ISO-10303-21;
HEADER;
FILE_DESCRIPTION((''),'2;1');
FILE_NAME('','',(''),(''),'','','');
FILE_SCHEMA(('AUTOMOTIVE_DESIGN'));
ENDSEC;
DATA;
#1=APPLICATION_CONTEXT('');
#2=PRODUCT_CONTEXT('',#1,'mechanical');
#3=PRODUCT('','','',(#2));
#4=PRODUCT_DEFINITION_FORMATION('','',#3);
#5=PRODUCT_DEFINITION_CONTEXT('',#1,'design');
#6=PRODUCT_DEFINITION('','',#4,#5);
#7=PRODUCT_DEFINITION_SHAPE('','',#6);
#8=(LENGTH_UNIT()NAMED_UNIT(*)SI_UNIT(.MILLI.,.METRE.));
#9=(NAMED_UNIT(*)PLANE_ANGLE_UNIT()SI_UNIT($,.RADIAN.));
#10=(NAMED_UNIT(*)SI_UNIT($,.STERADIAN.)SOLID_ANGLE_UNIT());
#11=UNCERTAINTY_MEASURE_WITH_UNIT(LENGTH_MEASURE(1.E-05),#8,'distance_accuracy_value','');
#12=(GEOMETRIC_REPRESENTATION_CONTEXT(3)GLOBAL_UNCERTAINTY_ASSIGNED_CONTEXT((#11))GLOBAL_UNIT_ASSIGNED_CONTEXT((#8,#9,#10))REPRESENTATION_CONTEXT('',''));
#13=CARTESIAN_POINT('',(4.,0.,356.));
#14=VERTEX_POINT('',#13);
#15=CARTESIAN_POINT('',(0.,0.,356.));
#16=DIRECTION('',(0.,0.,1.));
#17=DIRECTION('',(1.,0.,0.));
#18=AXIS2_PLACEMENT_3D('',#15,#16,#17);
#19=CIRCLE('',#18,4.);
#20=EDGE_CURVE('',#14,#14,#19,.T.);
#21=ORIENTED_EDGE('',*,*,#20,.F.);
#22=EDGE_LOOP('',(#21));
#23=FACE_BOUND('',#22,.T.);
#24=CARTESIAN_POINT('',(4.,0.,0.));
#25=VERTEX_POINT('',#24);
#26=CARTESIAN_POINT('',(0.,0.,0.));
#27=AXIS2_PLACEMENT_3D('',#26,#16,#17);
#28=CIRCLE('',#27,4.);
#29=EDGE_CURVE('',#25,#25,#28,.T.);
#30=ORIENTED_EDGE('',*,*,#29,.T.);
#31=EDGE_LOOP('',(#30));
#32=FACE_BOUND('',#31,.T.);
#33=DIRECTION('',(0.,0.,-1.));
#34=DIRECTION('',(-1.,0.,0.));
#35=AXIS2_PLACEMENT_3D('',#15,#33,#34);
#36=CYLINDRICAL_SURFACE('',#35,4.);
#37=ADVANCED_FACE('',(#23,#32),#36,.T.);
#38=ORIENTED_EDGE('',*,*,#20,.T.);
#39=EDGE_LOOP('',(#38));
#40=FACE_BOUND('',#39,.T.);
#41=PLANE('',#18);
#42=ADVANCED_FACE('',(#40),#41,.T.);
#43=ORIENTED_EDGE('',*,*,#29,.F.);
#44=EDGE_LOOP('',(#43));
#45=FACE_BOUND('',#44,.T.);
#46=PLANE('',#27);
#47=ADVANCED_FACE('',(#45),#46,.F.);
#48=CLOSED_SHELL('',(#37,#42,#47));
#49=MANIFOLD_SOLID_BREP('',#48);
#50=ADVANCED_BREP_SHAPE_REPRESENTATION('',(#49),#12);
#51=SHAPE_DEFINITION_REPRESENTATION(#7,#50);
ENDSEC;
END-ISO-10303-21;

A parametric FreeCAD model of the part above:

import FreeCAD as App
import Part
import Sketcher
from FreeCAD import Vector

doc = App.newDocument("Part")
params = doc.addObject("Spreadsheet::Sheet", "Params")
for row, (alias, value) in enumerate([
    ("sketch1_diameter", "8 mm"),
    ("pad1_length", "356 mm"),
], start=1):
    params.set(f"A{row}", alias)
    params.set(f"B{row}", "=" + value)
    params.setAlias(f"B{row}", alias)

body = doc.addObject("PartDesign::Body", "Body")

sketch1 = body.newObject("Sketcher::SketchObject", "Sketch")
sketch1.AttachmentSupport = (doc.getObject("XY_Plane"), [""])
sketch1.MapMode = "FlatFace"
sketch1.addGeometry(Part.Circle(Vector(0, 0, 0), Vector(0, 0, 1), 4), False)
sketch1.addConstraint([
    Sketcher.Constraint("Coincident", 0, 3, -1, 1),
    Sketcher.Constraint("Diameter", 0, 8.0),
])
sketch1.setExpression("Constraints[1]", "Params.sketch1_diameter")
pad1 = body.newObject("PartDesign::Pad", "Pad")
pad1.Profile = sketch1
pad1.setExpression("Length", "Params.pad1_length")

doc.recompute()
